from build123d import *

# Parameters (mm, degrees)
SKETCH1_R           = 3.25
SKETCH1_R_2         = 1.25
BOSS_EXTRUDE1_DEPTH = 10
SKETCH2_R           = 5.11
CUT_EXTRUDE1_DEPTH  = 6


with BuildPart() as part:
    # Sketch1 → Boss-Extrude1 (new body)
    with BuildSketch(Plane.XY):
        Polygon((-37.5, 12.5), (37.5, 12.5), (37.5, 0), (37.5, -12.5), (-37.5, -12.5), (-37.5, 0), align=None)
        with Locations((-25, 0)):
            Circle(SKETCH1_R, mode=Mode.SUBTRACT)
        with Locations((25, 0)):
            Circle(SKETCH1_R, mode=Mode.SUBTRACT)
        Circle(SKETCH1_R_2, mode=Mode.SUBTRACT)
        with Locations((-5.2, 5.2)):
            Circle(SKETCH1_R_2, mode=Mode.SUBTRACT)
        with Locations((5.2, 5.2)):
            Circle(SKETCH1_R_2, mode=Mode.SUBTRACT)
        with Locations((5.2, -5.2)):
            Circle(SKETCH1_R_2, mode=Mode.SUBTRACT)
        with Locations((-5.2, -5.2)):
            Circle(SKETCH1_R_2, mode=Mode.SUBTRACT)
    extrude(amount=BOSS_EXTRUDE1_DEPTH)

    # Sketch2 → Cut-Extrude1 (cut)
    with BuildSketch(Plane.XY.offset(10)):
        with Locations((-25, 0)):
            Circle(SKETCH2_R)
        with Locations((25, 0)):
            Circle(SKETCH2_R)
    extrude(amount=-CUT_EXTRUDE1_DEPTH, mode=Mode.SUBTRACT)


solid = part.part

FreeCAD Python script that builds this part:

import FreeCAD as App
import Part
import Sketcher


def add_polygon(sketch, points):
    """Adds a closed chain of lines whose ends are joined by coincident constraints."""
    first, n = sketch.GeometryCount, len(points)
    for a, b in zip(points, points[1:] + points[:1]):
        sketch.addGeometry(Part.LineSegment(App.Vector(*a, 0), App.Vector(*b, 0)), False)
    for i in range(n):
        sketch.addConstraint(Sketcher.Constraint("Coincident", first + i, 2, first + (i + 1) % n, 1))

doc = App.newDocument("Part")
body = doc.addObject("PartDesign::Body", "Body")

sketch1 = body.newObject("Sketcher::SketchObject", "Sketch")
sketch1.AttachmentSupport = (doc.getObject("XY_Plane"), [""])
sketch1.MapMode = "FlatFace"
add_polygon(sketch1, [(37.5, 12.5), (-37.5, 12.5), (-37.5, -12.5), (37.5, -12.5)])
sketch1.addGeometry(Part.Circle(App.Vector(5.2, -5.2, 0), App.Vector(0, 0, 1), 1.2), False)
sketch1.addGeometry(Part.Circle(App.Vector(-5.2, -5.2, 0), App.Vector(0, 0, 1), 1.2), False)
sketch1.addGeometry(Part.Circle(App.Vector(25, 0, 0), App.Vector(0, 0, 1), 3.2), False)
sketch1.addGeometry(Part.Circle(App.Vector(5.2, 5.2, 0), App.Vector(0, 0, 1), 1.2), False)
sketch1.addGeometry(Part.Circle(App.Vector(0, 0, 0), App.Vector(0, 0, 1), 1.2), False)
sketch1.addGeometry(Part.Circle(App.Vector(-25, 0, 0), App.Vector(0, 0, 1), 3.2), False)
sketch1.addGeometry(Part.Circle(App.Vector(-5.2, 5.2, 0), App.Vector(0, 0, 1), 1.2), False)
sketch1.addConstraint([
    Sketcher.Constraint("Horizontal", 0),
    Sketcher.Constraint("Vertical", 1),
    Sketcher.Constraint("Horizontal", 2),
    Sketcher.Constraint("Vertical", 3),
    Sketcher.Constraint("Coincident", 8, 3, -1, 1),
    Sketcher.Constraint("Equal", 4, 5),
    Sketcher.Constraint("Equal", 5, 7),
    Sketcher.Constraint("Equal", 7, 8),
    Sketcher.Constraint("Equal", 6, 9),
    Sketcher.Constraint("Equal", 8, 10),
    Sketcher.Constraint("Symmetric", 5, 3, 7, 3, -1, 1),
    Sketcher.Constraint("Symmetric", 6, 3, 9, 3, -1, 1),
    Sketcher.Constraint("Symmetric", 4, 3, 10, 3, -1, 1),
    Sketcher.Constraint("Symmetric", 0, 2, 2, 2, -1, 1),
    Sketcher.Constraint("Symmetric", 4, 3, 5, 3, -2),
    Sketcher.Constraint("PointOnObject", 6, 3, -1),
    Sketcher.Constraint("Diameter", 4, 2.5),
    Sketcher.Constraint("Diameter", 6, 6.5),
    Sketcher.Constraint("DistanceX", 0, 2, 0, 1, 75.0),
    Sketcher.Constraint("DistanceY", 1, 2, 1, 1, 25.0),
    Sketcher.Constraint("DistanceX", -1, 1, 6, 3, 25.0),
    Sketcher.Constraint("DistanceX", -1, 1, 4, 3, 5.2),
    Sketcher.Constraint("DistanceY", 4, 3, -1, 1, 5.2),
])
pad1 = body.newObject("PartDesign::Pad", "Pad")
pad1.Profile = sketch1
pad1.Length = 10

sketch2 = body.newObject("Sketcher::SketchObject", "Sketch001")
sketch2.AttachmentSupport = (doc.getObject("XY_Plane"), [""])
sketch2.MapMode = "FlatFace"
sketch2.AttachmentOffset = App.Placement(App.Vector(0, 0, 10), App.Rotation())
sketch2.addGeometry([
    Part.Circle(App.Vector(-25, 0, 0), App.Vector(0, 0, 1), 5),
    Part.Circle(App.Vector(25, 0, 0), App.Vector(0, 0, 1), 5),
], False)
sketch2.addConstraint([
    Sketcher.Constraint("Equal", 0, 1),
    Sketcher.Constraint("Symmetric", 0, 3, 1, 3, -1, 1),
    Sketcher.Constraint("PointOnObject", 0, 3, -1),
    Sketcher.Constraint("Diameter", 0, 10.22),
    Sketcher.Constraint("DistanceX", 0, 3, -1, 1, 25.0),
])
pocket1 = body.newObject("PartDesign::Pocket", "Pocket")
pocket1.Profile = sketch2
pocket1.Length = 6

doc.recompute()
